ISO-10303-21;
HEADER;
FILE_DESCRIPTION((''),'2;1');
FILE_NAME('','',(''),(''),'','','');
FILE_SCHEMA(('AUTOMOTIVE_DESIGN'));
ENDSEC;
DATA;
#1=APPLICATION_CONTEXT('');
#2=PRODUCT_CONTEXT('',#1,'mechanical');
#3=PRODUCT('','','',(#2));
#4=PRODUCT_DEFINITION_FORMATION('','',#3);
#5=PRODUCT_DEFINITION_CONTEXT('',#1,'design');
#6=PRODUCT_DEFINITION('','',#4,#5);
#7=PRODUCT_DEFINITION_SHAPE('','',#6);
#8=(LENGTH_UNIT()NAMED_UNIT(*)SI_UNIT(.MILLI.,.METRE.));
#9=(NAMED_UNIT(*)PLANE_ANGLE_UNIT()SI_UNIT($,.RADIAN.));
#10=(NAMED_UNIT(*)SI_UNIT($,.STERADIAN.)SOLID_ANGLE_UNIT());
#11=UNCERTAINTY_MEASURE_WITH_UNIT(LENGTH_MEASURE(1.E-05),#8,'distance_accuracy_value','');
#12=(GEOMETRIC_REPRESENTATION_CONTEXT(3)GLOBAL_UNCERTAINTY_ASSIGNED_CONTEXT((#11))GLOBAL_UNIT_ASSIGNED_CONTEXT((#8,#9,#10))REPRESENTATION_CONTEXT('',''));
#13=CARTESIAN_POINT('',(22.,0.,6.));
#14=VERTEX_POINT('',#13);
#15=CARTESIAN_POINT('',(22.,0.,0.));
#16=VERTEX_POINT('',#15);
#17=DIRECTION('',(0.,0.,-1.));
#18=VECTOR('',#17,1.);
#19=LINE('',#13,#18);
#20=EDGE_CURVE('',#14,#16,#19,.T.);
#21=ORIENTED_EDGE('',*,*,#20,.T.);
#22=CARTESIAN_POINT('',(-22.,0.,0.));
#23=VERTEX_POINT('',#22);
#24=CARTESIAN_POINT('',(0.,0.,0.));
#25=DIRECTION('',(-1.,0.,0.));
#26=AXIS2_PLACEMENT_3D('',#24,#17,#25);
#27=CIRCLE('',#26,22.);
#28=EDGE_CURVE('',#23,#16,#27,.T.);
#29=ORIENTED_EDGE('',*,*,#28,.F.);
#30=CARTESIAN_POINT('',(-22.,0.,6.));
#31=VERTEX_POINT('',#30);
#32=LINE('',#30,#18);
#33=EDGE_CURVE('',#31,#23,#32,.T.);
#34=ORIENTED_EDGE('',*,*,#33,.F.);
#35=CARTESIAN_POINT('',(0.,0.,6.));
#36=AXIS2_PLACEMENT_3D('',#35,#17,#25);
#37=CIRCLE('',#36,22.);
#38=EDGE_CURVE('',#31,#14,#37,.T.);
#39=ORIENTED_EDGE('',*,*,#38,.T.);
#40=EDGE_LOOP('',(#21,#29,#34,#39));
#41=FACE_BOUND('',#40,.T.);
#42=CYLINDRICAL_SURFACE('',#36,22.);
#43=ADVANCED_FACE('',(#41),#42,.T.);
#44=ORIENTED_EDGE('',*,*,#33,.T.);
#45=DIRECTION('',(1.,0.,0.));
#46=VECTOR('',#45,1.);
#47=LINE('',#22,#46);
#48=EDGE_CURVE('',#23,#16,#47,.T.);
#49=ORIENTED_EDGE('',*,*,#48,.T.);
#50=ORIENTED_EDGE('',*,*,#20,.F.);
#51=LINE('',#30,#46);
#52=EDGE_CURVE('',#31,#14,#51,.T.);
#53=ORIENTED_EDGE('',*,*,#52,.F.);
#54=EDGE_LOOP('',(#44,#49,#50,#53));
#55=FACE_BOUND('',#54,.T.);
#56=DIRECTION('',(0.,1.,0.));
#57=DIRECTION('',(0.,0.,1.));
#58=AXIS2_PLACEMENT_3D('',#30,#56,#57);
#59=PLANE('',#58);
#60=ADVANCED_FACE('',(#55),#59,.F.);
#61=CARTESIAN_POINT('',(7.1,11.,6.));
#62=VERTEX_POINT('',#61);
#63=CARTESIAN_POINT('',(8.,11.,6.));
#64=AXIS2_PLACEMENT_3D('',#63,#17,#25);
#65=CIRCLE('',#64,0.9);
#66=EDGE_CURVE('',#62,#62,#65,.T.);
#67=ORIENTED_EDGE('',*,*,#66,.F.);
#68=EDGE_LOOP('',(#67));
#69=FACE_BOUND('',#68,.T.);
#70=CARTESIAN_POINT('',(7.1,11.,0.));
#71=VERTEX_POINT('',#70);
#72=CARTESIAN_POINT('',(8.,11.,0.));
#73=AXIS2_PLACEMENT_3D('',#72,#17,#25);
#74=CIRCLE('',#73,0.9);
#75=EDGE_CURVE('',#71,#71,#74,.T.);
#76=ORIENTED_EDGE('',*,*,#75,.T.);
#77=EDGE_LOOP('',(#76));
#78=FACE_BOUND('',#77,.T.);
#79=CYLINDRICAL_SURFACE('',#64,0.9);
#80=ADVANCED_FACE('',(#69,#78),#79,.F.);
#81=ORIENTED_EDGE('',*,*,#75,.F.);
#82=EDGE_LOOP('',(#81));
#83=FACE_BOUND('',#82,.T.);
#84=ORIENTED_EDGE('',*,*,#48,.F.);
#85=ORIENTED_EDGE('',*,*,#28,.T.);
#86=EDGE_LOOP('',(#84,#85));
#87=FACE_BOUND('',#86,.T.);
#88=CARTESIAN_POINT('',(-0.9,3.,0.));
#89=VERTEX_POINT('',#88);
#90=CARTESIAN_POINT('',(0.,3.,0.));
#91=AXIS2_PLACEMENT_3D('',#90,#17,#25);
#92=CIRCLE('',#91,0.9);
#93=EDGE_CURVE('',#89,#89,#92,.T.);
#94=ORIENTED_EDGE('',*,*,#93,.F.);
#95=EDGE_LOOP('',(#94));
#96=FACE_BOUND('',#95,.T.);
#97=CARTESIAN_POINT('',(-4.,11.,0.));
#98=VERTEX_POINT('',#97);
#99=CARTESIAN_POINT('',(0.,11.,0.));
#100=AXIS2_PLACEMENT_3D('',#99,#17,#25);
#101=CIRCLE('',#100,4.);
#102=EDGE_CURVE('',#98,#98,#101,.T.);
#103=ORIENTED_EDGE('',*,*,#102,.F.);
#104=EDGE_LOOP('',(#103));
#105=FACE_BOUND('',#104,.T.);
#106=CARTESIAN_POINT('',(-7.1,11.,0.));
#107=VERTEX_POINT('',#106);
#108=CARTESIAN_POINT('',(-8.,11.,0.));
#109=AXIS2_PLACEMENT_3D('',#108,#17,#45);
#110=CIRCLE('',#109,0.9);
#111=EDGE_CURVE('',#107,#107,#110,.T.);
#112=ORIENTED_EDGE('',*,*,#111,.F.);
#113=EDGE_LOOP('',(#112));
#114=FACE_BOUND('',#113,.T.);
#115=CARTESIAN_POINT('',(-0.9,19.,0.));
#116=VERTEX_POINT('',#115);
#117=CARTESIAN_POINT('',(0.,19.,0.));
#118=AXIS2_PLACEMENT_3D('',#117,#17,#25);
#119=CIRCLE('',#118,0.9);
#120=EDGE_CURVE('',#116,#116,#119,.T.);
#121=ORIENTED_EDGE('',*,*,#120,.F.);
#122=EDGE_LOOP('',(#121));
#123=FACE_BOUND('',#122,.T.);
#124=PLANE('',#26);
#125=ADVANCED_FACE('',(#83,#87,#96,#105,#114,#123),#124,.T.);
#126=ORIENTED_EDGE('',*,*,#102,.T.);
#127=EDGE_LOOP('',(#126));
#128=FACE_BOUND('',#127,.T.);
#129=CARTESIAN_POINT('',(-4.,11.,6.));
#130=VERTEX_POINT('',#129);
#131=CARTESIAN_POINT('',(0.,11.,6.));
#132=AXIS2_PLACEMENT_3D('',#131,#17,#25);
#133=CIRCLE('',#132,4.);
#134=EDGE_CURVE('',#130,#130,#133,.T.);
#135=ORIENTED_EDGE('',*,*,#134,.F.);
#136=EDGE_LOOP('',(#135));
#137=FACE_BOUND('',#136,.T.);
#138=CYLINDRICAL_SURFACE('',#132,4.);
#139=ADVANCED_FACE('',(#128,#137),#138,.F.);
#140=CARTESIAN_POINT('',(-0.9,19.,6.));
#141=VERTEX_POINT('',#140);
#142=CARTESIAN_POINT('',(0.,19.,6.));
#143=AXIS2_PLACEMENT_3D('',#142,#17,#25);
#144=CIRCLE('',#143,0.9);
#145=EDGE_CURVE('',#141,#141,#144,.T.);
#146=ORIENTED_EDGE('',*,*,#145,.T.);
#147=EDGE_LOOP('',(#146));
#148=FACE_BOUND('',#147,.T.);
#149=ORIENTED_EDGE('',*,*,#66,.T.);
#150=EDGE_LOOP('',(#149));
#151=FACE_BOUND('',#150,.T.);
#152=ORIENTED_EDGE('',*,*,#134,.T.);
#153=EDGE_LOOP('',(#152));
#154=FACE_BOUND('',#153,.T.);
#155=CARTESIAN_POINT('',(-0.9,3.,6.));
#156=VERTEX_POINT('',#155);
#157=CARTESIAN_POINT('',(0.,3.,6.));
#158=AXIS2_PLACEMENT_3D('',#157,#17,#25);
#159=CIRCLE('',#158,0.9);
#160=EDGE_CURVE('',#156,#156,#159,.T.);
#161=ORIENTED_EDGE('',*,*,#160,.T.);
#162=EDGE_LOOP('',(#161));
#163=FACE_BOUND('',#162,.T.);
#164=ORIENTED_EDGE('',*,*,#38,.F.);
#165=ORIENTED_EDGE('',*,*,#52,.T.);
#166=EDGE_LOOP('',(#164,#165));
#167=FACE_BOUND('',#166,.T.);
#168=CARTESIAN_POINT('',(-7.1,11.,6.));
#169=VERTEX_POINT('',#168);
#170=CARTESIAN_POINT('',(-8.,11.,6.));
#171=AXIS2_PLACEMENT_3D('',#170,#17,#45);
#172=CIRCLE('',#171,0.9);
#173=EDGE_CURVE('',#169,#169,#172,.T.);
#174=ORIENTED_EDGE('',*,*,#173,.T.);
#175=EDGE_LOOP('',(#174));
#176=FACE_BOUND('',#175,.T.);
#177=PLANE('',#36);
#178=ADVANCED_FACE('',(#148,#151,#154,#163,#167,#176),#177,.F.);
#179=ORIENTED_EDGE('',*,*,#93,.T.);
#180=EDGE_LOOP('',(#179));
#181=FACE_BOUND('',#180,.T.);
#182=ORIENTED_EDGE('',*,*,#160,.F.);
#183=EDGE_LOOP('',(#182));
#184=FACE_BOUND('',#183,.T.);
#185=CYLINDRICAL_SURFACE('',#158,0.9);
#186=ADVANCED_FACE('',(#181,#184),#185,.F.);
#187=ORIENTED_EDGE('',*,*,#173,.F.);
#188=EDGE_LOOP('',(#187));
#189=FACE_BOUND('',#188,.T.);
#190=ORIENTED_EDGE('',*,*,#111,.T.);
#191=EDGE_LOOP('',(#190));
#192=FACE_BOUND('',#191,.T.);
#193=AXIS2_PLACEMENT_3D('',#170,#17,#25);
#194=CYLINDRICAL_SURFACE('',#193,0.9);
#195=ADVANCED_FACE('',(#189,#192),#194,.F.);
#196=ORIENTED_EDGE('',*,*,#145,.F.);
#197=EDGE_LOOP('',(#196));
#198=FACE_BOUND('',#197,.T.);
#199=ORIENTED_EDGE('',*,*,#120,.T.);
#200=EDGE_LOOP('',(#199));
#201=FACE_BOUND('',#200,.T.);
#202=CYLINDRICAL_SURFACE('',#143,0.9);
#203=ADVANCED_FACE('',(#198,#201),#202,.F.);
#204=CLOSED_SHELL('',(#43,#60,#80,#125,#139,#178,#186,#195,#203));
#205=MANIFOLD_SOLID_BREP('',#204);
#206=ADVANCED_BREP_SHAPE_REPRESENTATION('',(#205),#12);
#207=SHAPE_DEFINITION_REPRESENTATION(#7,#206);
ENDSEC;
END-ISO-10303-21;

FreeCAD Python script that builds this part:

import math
import FreeCAD as App
import Part
import Sketcher

V = App.Vector

doc = App.newDocument("Part")
body = doc.addObject("PartDesign::Body", "Body")

sketch1 = doc.addObject("Sketcher::SketchObject", "Sketch")
body.addObject(sketch1)
sketch1.AttachmentSupport = (doc.XY_Plane, [""])
sketch1.MapMode = "FlatFace"
sketch1.addGeometry([
    Part.LineSegment(V(-22, 0, 0), V(22, 0, 0)),
    Part.ArcOfCircle(Part.Circle(V(0, 0, 0), V(0, 0, 1), 22), math.radians(0), math.radians(180)),
], False)
sketch1.addConstraint([
    Sketcher.Constraint("Coincident", 0, 1, 1, 2),
    Sketcher.Constraint("Coincident", 1, 1, 0, 2),
    Sketcher.Constraint("Horizontal", 0),
    Sketcher.Constraint("Coincident", 1, 3, -1, 1),
    Sketcher.Constraint("PointOnObject", 0, 1, -1),
    Sketcher.Constraint("Radius", 1, 22.0),
])
pad1 = doc.addObject("PartDesign::Pad", "Pad")
body.addObject(pad1)
pad1.Profile = sketch1
pad1.Length = 6

sketch2 = doc.addObject("Sketcher::SketchObject", "Sketch001")
body.addObject(sketch2)
sketch2.AttachmentSupport = (doc.XY_Plane, [""])
sketch2.MapMode = "FlatFace"
sketch2.addGeometry([
    Part.Circle(V(0, 11, 0), V(0, 0, 1), 4),
    Part.Circle(V(0, 19, 0), V(0, 0, 1), 0.9),
    Part.Circle(V(0, 3, 0), V(0, 0, 1), 0.9),
    Part.Circle(V(8, 11, 0), V(0, 0, 1), 0.9),
    Part.Circle(V(-8, 11, 0), V(0, 0, 1), 0.9),
], False)
sketch2.addConstraint([
    Sketcher.Constraint("Equal", 1, 2),
    Sketcher.Constraint("Equal", 2, 3),
    Sketcher.Constraint("Equal", 3, 4),
    Sketcher.Constraint("Symmetric", 3, 3, 4, 3, -2),
    Sketcher.Constraint("PointOnObject", 0, 3, -2),
    Sketcher.Constraint("PointOnObject", 1, 3, -2),
    Sketcher.Constraint("PointOnObject", 2, 3, -2),
    Sketcher.Constraint("Horizontal", 0, 3, 3, 3),
    Sketcher.Constraint("Diameter", 0, 8.0),
    Sketcher.Constraint("Diameter", 1, 1.8),
    Sketcher.Constraint("DistanceY", -1, 1, 0, 3, 11.0),
    Sketcher.Constraint("DistanceY", -1, 1, 1, 3, 19.0),
    Sketcher.Constraint("DistanceY", -1, 1, 2, 3, 3.0),
    Sketcher.Constraint("DistanceX", -1, 1, 3, 3, 8.0),
])
pocket1 = doc.addObject("PartDesign::Pocket", "Pocket")
body.addObject(pocket1)
pocket1.Profile = sketch2
pocket1.Length = 6
pocket1.Reversed = True

doc.recompute()
